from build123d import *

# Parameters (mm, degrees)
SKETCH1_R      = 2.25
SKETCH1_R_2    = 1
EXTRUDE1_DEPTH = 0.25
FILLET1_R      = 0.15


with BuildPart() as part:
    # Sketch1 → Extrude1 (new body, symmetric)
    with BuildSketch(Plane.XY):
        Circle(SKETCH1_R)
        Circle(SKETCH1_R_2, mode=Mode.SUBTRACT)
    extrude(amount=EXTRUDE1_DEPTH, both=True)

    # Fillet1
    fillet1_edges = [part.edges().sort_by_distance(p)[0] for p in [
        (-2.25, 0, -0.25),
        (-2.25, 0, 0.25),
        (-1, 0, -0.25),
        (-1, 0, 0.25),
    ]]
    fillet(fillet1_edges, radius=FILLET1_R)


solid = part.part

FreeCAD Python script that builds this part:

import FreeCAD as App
import Part
import Sketcher

V = App.Vector


def edges_at(feature, points):
    """Names of the edges that pass closest to the given points."""
    edges = feature.Shape.Edges
    near = lambda p: min(range(len(edges)), key=lambda i: edges[i].distToShape(Part.Vertex(*p))[0])
    return sorted({f"Edge{near(p) + 1}" for p in points})

doc = App.newDocument("Part")
body = doc.addObject("PartDesign::Body", "Body")

# Sketch on XY plane
sketch1 = body.newObject("Sketcher::SketchObject", "Sketch")
sketch1.AttachmentSupport = (doc.getObject("XY_Plane"), [""])
sketch1.MapMode = "FlatFace"
sketch1.addGeometry([
    Part.Circle(V(0, 0, 0), V(0, 0, 1), 2.25),
    Part.Circle(V(0, 0, 0), V(0, 0, 1), 1),
], False)
sketch1.addConstraint([
    Sketcher.Constraint("Coincident", 0, 3, -1, 1),
    Sketcher.Constraint("Coincident", 1, 3, -1, 1),
    Sketcher.Constraint("Diameter", 1, 2.0),
    Sketcher.Constraint("Diameter", 0, 4.5),
])
pad1 = body.newObject("PartDesign::Pad", "Pad")
pad1.Profile = sketch1
pad1.Length = 0.5
pad1.Midplane = True
doc.recompute()

fillet = body.newObject("PartDesign::Fillet", "Fillet")
fillet.Base = (pad1, edges_at(pad1, [
    (-2.25, 0, -0.25),
    (-2.25, 0, 0.25),
    (-1, 0, -0.25),
    (-1, 0, 0.25),
]))
fillet.Radius = 0.15

doc.recompute()
